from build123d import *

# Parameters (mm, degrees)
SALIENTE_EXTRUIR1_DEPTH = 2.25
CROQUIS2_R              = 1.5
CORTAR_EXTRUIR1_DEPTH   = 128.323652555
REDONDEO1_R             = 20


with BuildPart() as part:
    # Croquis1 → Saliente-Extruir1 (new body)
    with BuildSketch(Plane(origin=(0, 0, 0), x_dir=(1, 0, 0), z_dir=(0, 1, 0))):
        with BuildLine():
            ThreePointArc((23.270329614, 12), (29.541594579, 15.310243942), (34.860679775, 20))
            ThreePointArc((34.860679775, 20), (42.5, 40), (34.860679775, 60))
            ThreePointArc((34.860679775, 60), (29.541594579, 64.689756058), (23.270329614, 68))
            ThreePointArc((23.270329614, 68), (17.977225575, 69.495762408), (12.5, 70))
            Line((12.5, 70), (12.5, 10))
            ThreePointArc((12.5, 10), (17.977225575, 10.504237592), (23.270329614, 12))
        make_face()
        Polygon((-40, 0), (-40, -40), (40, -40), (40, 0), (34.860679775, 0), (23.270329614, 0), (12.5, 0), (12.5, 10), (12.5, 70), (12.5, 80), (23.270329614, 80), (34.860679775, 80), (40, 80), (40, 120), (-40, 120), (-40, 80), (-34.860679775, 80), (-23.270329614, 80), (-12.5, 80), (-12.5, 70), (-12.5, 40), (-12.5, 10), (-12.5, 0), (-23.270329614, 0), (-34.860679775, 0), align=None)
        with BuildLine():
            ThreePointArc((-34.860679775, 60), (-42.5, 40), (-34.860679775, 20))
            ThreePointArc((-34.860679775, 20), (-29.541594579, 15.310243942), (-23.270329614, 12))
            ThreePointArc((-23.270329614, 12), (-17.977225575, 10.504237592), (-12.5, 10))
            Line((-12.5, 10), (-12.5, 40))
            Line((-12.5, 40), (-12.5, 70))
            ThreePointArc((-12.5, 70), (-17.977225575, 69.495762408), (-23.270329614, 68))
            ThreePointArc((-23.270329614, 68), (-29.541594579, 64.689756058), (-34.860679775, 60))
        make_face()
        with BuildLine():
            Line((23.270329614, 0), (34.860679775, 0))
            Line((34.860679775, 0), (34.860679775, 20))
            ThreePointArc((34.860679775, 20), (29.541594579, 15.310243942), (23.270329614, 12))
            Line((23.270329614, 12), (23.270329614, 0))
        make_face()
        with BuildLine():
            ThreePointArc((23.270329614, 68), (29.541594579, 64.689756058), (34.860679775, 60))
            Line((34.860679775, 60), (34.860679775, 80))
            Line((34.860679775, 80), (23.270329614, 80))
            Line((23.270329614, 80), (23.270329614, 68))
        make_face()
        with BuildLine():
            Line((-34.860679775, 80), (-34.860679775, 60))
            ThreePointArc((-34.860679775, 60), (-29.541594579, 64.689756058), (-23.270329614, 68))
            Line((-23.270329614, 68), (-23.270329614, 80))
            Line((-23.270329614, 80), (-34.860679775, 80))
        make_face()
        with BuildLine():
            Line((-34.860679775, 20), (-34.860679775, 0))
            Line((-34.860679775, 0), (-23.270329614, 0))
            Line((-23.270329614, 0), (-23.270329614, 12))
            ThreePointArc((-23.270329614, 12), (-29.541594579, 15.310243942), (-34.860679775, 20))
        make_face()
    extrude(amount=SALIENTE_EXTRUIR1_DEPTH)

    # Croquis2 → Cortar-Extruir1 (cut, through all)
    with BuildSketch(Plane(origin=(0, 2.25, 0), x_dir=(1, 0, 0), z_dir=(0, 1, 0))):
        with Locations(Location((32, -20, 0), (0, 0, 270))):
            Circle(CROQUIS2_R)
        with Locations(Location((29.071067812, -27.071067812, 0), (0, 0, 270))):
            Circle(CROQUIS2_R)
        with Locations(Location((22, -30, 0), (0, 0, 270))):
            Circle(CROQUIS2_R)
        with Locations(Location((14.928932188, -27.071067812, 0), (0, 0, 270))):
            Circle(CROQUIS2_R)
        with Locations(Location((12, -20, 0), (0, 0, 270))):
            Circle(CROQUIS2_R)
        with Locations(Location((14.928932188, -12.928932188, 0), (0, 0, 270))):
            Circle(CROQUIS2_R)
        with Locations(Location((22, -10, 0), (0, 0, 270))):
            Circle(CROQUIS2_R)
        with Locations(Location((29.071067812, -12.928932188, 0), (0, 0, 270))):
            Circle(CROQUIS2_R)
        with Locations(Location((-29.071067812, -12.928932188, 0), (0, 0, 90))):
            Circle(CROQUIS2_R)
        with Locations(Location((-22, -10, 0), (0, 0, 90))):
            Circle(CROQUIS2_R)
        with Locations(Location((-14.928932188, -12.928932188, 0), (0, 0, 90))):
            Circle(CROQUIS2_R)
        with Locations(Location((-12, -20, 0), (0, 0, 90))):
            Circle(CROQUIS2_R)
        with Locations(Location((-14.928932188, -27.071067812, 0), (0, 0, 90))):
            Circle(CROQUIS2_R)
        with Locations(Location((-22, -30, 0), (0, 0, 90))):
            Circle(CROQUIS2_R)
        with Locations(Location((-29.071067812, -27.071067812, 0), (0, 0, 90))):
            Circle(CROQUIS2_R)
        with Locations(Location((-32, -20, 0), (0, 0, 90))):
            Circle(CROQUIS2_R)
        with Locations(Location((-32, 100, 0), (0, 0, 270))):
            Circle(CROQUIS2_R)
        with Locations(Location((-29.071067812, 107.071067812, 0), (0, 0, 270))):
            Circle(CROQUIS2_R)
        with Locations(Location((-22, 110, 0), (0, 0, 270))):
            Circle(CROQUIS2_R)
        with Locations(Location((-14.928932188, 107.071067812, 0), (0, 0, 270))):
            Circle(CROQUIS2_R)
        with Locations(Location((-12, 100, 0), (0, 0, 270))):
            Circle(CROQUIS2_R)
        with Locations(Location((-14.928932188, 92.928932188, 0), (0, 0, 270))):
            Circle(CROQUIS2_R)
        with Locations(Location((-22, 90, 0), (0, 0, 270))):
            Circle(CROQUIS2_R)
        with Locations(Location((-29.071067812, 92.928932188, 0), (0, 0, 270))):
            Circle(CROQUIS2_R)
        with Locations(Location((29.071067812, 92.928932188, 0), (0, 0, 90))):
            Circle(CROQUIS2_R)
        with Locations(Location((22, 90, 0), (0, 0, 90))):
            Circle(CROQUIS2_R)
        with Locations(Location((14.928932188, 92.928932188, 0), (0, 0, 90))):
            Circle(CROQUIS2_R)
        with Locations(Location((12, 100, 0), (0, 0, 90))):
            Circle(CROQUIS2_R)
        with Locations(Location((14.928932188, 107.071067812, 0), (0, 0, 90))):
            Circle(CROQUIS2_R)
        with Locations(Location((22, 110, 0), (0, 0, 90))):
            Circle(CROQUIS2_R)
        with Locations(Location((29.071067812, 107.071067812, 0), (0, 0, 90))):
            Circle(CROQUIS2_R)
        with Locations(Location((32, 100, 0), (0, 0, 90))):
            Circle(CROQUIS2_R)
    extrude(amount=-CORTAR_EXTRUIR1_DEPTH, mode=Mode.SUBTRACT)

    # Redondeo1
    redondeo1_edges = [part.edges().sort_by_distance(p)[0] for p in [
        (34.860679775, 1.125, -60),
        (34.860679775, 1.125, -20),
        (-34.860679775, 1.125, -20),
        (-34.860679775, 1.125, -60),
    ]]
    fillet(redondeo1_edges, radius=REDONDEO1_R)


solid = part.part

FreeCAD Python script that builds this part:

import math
import FreeCAD as App
import Part
import Sketcher
from FreeCAD import Vector
Q = App.Units.Quantity


def edges_at(feature, points):
    """Names of the edges that pass closest to the given points."""
    edges = feature.Shape.Edges
    near = lambda p: min(range(len(edges)), key=lambda i: edges[i].distToShape(Part.Vertex(*p))[0])
    return sorted({f"Edge{near(p) + 1}" for p in points})

doc = App.newDocument("Part")
params = doc.addObject("Spreadsheet::Sheet", "Params")
for row, (alias, value) in enumerate([
    ("sketch1_radius", "30 mm"),
    ("sketch1_width", "80 mm"),
    ("sketch1_height", "20 mm"),
    ("sketch1_height2", "40 mm"),
    ("sketch1_height3", "10 mm"),
    ("pad1_length", "2.25 mm"),
    ("sketch2_diameter", "3 mm"),
    ("fillet_radius", "20 mm"),
], start=1):
    params.set(f"A{row}", alias)
    params.set(f"B{row}", "=" + value)
    params.setAlias(f"B{row}", alias)

body = doc.addObject("PartDesign::Body", "Body")

sketch1 = body.newObject("Sketcher::SketchObject", "Sketch")
sketch1.AttachmentSupport = (doc.getObject("XZ_Plane"), [""])
sketch1.MapMode = "FlatFace"
sketch1.addGeometry(Part.ArcOfCircle(Part.Circle(Vector(13, -40, 0), Vector(0, 0, 1), 30), math.radians(-42), math.radians(42)), False)
sketch1.addGeometry(Part.LineSegment(Vector(35, -60, 0), Vector(35, -80, 0)), False)
sketch1.addGeometry(Part.LineSegment(Vector(35, -80, 0), Vector(40, -80, 0)), False)
sketch1.addGeometry(Part.LineSegment(Vector(40, -80, 0), Vector(40, -120, 0)), False)
sketch1.addGeometry(Part.LineSegment(Vector(40, -120, 0), Vector(-40, -120, 0)), False)
sketch1.addGeometry(Part.LineSegment(Vector(-40, -120, 0), Vector(-40, -80, 0)), False)
sketch1.addGeometry(Part.LineSegment(Vector(-40, -80, 0), Vector(-35, -80, 0)), False)
sketch1.addGeometry(Part.LineSegment(Vector(-35, -80, 0), Vector(-35, -60, 0)), False)
sketch1.addGeometry(Part.ArcOfCircle(Part.Circle(Vector(-13, -40, 0), Vector(0, 0, 1), 30), math.radians(138), math.radians(222)), False)
sketch1.addGeometry(Part.LineSegment(Vector(-35, -20, 0), Vector(-35, 0, 0)), False)
sketch1.addGeometry(Part.LineSegment(Vector(-35, 0, 0), Vector(-40, 0, 0)), False)
sketch1.addGeometry(Part.LineSegment(Vector(-40, 0, 0), Vector(-40, 40, 0)), False)
sketch1.addGeometry(Part.LineSegment(Vector(-40, 40, 0), Vector(40, 40, 0)), False)
sketch1.addGeometry(Part.LineSegment(Vector(40, 40, 0), Vector(40, 0, 0)), False)
sketch1.addGeometry(Part.LineSegment(Vector(40, 0, 0), Vector(35, 0, 0)), False)
sketch1.addGeometry(Part.LineSegment(Vector(35, 0, 0), Vector(35, -20, 0)), False)
sketch1.addGeometry(Part.ArcOfCircle(Part.Circle(Vector(-13, -40, 0), Vector(0, 0, 1), 30), math.radians(90), math.radians(111)), False)
sketch1.addGeometry(Part.LineSegment(Vector(-12, -10, 0), Vector(-12, 0, 0)), False)
sketch1.addGeometry(Part.LineSegment(Vector(-12, 0, 0), Vector(-23, 0, 0)), False)
sketch1.addGeometry(Part.LineSegment(Vector(-23, 0, 0), Vector(-23, -12, 0)), False)
sketch1.addGeometry(Part.LineSegment(Vector(-23, -80, 0), Vector(-12, -80, 0)), False)
sketch1.addGeometry(Part.LineSegment(Vector(-12, -80, 0), Vector(-12, -70, 0)), False)
sketch1.addGeometry(Part.ArcOfCircle(Part.Circle(Vector(-13, -40, 0), Vector(0, 0, 1), 30), math.radians(-111), math.radians(-90)), False)
sketch1.addGeometry(Part.LineSegment(Vector(-23, -68, 0), Vector(-23, -80, 0)), False)
sketch1.addGeometry(Part.ArcOfCircle(Part.Circle(Vector(13, -40, 0), Vector(0, 0, 1), 30), math.radians(-90), math.radians(-69)), False)
sketch1.addGeometry(Part.LineSegment(Vector(12, -70, 0), Vector(12, -80, 0)), False)
sketch1.addGeometry(Part.LineSegment(Vector(12, -80, 0), Vector(23, -80, 0)), False)
sketch1.addGeometry(Part.LineSegment(Vector(23, -80, 0), Vector(23, -68, 0)), False)
sketch1.addGeometry(Part.LineSegment(Vector(23, 0, 0), Vector(12, 0, 0)), False)
sketch1.addGeometry(Part.LineSegment(Vector(12, 0, 0), Vector(12, -10, 0)), False)
sketch1.addGeometry(Part.ArcOfCircle(Part.Circle(Vector(13, -40, 0), Vector(0, 0, 1), 30), math.radians(69), math.radians(90)), False)
sketch1.addGeometry(Part.LineSegment(Vector(23, -12, 0), Vector(23, 0, 0)), False)
sketch1.addConstraint(Sketcher.Constraint("Coincident", 0, 1, 1, 1))
sketch1.addConstraint(Sketcher.Constraint("Coincident", 1, 2, 2, 1))
sketch1.addConstraint(Sketcher.Constraint("Coincident", 2, 2, 3, 1))
sketch1.addConstraint(Sketcher.Constraint("Coincident", 3, 2, 4, 1))
sketch1.addConstraint(Sketcher.Constraint("Coincident", 4, 2, 5, 1))
sketch1.addConstraint(Sketcher.Constraint("Coincident", 5, 2, 6, 1))
sketch1.addConstraint(Sketcher.Constraint("Coincident", 6, 2, 7, 1))
sketch1.addConstraint(Sketcher.Constraint("Coincident", 7, 2, 8, 2))
sketch1.addConstraint(Sketcher.Constraint("Coincident", 8, 1, 9, 1))
sketch1.addConstraint(Sketcher.Constraint("Coincident", 9, 2, 10, 1))
sketch1.addConstraint(Sketcher.Constraint("Coincident", 10, 2, 11, 1))
sketch1.addConstraint(Sketcher.Constraint("Coincident", 11, 2, 12, 1))
sketch1.addConstraint(Sketcher.Constraint("Coincident", 12, 2, 13, 1))
sketch1.addConstraint(Sketcher.Constraint("Coincident", 13, 2, 14, 1))
sketch1.addConstraint(Sketcher.Constraint("Coincident", 14, 2, 15, 1))
sketch1.addConstraint(Sketcher.Constraint("Coincident", 15, 2, 0, 2))
sketch1.addConstraint(Sketcher.Constraint("Coincident", 16, 1, 17, 1))
sketch1.addConstraint(Sketcher.Constraint("Coincident", 17, 2, 18, 1))
sketch1.addConstraint(Sketcher.Constraint("Coincident", 18, 2, 19, 1))
sketch1.addConstraint(Sketcher.Constraint("Coincident", 19, 2, 16, 2))
sketch1.addConstraint(Sketcher.Constraint("Coincident", 20, 2, 21, 1))
sketch1.addConstraint(Sketcher.Constraint("Coincident", 21, 2, 22, 2))
sketch1.addConstraint(Sketcher.Constraint("Coincident", 22, 1, 23, 1))
sketch1.addConstraint(Sketcher.Constraint("Coincident", 23, 2, 20, 1))
sketch1.addConstraint(Sketcher.Constraint("Coincident", 24, 1, 25, 1))
sketch1.addConstraint(Sketcher.Constraint("Coincident", 25, 2, 26, 1))
sketch1.addConstraint(Sketcher.Constraint("Coincident", 26, 2, 27, 1))
sketch1.addConstraint(Sketcher.Constraint("Coincident", 27, 2, 24, 2))
sketch1.addConstraint(Sketcher.Constraint("Coincident", 28, 2, 29, 1))
sketch1.addConstraint(Sketcher.Constraint("Coincident", 29, 2, 30, 2))
sketch1.addConstraint(Sketcher.Constraint("Coincident", 30, 1, 31, 1))
sketch1.addConstraint(Sketcher.Constraint("Coincident", 31, 2, 28, 1))
sketch1.addConstraint(Sketcher.Constraint("Vertical", 1))
sketch1.addConstraint(Sketcher.Constraint("Horizontal", 2))
sketch1.addConstraint(Sketcher.Constraint("Vertical", 3))
sketch1.addConstraint(Sketcher.Constraint("Horizontal", 4))
sketch1.addConstraint(Sketcher.Constraint("Vertical", 5))
sketch1.addConstraint(Sketcher.Constraint("Horizontal", 6))
sketch1.addConstraint(Sketcher.Constraint("Vertical", 7))
sketch1.addConstraint(Sketcher.Constraint("Vertical", 9))
sketch1.addConstraint(Sketcher.Constraint("Horizontal", 10))
sketch1.addConstraint(Sketcher.Constraint("Vertical", 11))
sketch1.addConstraint(Sketcher.Constraint("Horizontal", 12))
sketch1.addConstraint(Sketcher.Constraint("Vertical", 13))
sketch1.addConstraint(Sketcher.Constraint("Horizontal", 14))
sketch1.addConstraint(Sketcher.Constraint("Vertical", 15))
sketch1.addConstraint(Sketcher.Constraint("Vertical", 17))
sketch1.addConstraint(Sketcher.Constraint("Horizontal", 18))
sketch1.addConstraint(Sketcher.Constraint("Vertical", 19))
sketch1.addConstraint(Sketcher.Constraint("Horizontal", 20))
sketch1.addConstraint(Sketcher.Constraint("Vertical", 21))
sketch1.addConstraint(Sketcher.Constraint("Vertical", 23))
sketch1.addConstraint(Sketcher.Constraint("Vertical", 25))
sketch1.addConstraint(Sketcher.Constraint("Horizontal", 26))
sketch1.addConstraint(Sketcher.Constraint("Vertical", 27))
sketch1.addConstraint(Sketcher.Constraint("Horizontal", 28))
sketch1.addConstraint(Sketcher.Constraint("Vertical", 29))
sketch1.addConstraint(Sketcher.Constraint("Vertical", 31))
sketch1.addConstraint(Sketcher.Constraint("Coincident", 16, 3, 8, 3))
sketch1.addConstraint(Sketcher.Constraint("Coincident", 22, 3, 8, 3))
sketch1.addConstraint(Sketcher.Constraint("Coincident", 24, 3, 0, 3))
sketch1.addConstraint(Sketcher.Constraint("Coincident", 30, 3, 0, 3))
sketch1.addConstraint(Sketcher.Constraint("Equal", 0, 8))
sketch1.addConstraint(Sketcher.Constraint("Equal", 8, 16))
sketch1.addConstraint(Sketcher.Constraint("Equal", 16, 22))
sketch1.addConstraint(Sketcher.Constraint("Equal", 22, 24))
sketch1.addConstraint(Sketcher.Constraint("Equal", 24, 30))
sketch1.addConstraint(Sketcher.Constraint("Symmetric", 10, 2, 13, 2, -1, 1))
sketch1.addConstraint(Sketcher.Constraint("Symmetric", 17, 2, 28, 2, -1, 1))
sketch1.addConstraint(Sketcher.Constraint("Symmetric", 0, 3, 8, 3, -2))
sketch1.addConstraint(Sketcher.Constraint("Symmetric", 2, 2, 5, 2, -2))
sketch1.addConstraint(Sketcher.Constraint("Symmetric", 9, 2, 14, 2, -2))
sketch1.addConstraint(Sketcher.Constraint("Symmetric", 20, 2, 25, 2, -2))
sketch1.addConstraint(Sketcher.Constraint("Symmetric", 18, 2, 31, 2, -2))
sketch1.addConstraint(Sketcher.Constraint("Horizontal", 0, 1, 7, 2))
sketch1.addConstraint(Sketcher.Constraint("Horizontal", 6, 2, 20, 2))
sketch1.addConstraint(Sketcher.Constraint("Horizontal", 22, 1, 27, 2))
sketch1.addConstraint(Sketcher.Constraint("Vertical", 7, 2, 8, 1))
sketch1.addConstraint(Sketcher.Constraint("Vertical", 5, 2, 10, 2))
sketch1.addConstraint(Sketcher.Constraint("Vertical", 22, 3, 16, 1))
sketch1.addConstraint(Sketcher.Constraint("Vertical", 17, 2, 20, 2))
sketch1.addConstraint(Sketcher.Constraint("Vertical", 19, 2, 22, 1))
sketch1.addConstraint(Sketcher.Constraint("Equal", 7, 9))
sketch1.addConstraint(Sketcher.Constraint("Equal", 5, 11))
sketch1.addConstraint(Sketcher.Constraint("Radius", 0, Q("30 mm")))
sketch1.addConstraint(Sketcher.Constraint("DistanceX", 4, 2, 4, 1, Q("80 mm")))
sketch1.addConstraint(Sketcher.Constraint("DistanceY", 1, 2, 1, 1, Q("20 mm")))
sketch1.addConstraint(Sketcher.Constraint("DistanceY", 3, 2, 3, 1, Q("40 mm")))
sketch1.addConstraint(Sketcher.Constraint("DistanceY", 17, 1, 17, 2, Q("10 mm")))
sketch1.addConstraint(Sketcher.Constraint("DistanceY", 19, 2, 19, 1, Q("12 mm")))
sketch1.addConstraint(Sketcher.Constraint("DistanceX", 8, 3, 0, 3, Q("25 mm")))
sketch1.setExpression("Constraints[84]", "Params.sketch1_radius")
sketch1.setExpression("Constraints[85]", "Params.sketch1_width")
sketch1.setExpression("Constraints[86]", "Params.sketch1_height")
sketch1.setExpression("Constraints[87]", "Params.sketch1_height2")
sketch1.setExpression("Constraints[88]", "Params.sketch1_height3")
pad1 = body.newObject("PartDesign::Pad", "Pad")
pad1.Profile = sketch1
pad1.setExpression("Length", "Params.pad1_length")
pad1.Reversed = True

sketch2 = body.newObject("Sketcher::SketchObject", "Sketch001")
sketch2.AttachmentSupport = (doc.getObject("XZ_Plane"), [""])
sketch2.MapMode = "FlatFace"
sketch2.AttachmentOffset = App.Placement(Vector(0, 0, -2.25), App.Rotation())
sketch2.addGeometry(Part.Circle(Vector(32, 20, 0), Vector(0, 0, 1), 1.5), False)
sketch2.addGeometry(Part.Circle(Vector(29.1, 27.1, 0), Vector(0, 0, 1), 1.5), False)
sketch2.addGeometry(Part.Circle(Vector(22, 30, 0), Vector(0, 0, 1), 1.5), False)
sketch2.addGeometry(Part.Circle(Vector(14.9, 27.1, 0), Vector(0, 0, 1), 1.5), False)
sketch2.addGeometry(Part.Circle(Vector(12, 20, 0), Vector(0, 0, 1), 1.5), False)
sketch2.addGeometry(Part.Circle(Vector(14.9, 12.9, 0), Vector(0, 0, 1), 1.5), False)
sketch2.addGeometry(Part.Circle(Vector(22, 10, 0), Vector(0, 0, 1), 1.5), False)
sketch2.addGeometry(Part.Circle(Vector(29.1, 12.9, 0), Vector(0, 0, 1), 1.5), False)
sketch2.addGeometry(Part.Circle(Vector(-29.1, 12.9, 0), Vector(0, 0, 1), 1.5), False)
sketch2.addGeometry(Part.Circle(Vector(-22, 10, 0), Vector(0, 0, 1), 1.5), False)
sketch2.addGeometry(Part.Circle(Vector(-14.9, 12.9, 0), Vector(0, 0, 1), 1.5), False)
sketch2.addGeometry(Part.Circle(Vector(-12, 20, 0), Vector(0, 0, 1), 1.5), False)
sketch2.addGeometry(Part.Circle(Vector(-14.9, 27.1, 0), Vector(0, 0, 1), 1.5), False)
sketch2.addGeometry(Part.Circle(Vector(-22, 30, 0), Vector(0, 0, 1), 1.5), False)
sketch2.addGeometry(Part.Circle(Vector(-29.1, 27.1, 0), Vector(0, 0, 1), 1.5), False)
sketch2.addGeometry(Part.Circle(Vector(-32, 20, 0), Vector(0, 0, 1), 1.5), False)
sketch2.addGeometry(Part.Circle(Vector(-32, -100, 0), Vector(0, 0, 1), 1.5), False)
sketch2.addGeometry(Part.Circle(Vector(-29.1, -107.1, 0), Vector(0, 0, 1), 1.5), False)
sketch2.addGeometry(Part.Circle(Vector(-22, -110, 0), Vector(0, 0, 1), 1.5), False)
sketch2.addGeometry(Part.Circle(Vector(-14.9, -107.1, 0), Vector(0, 0, 1), 1.5), False)
sketch2.addGeometry(Part.Circle(Vector(-12, -100, 0), Vector(0, 0, 1), 1.5), False)
sketch2.addGeometry(Part.Circle(Vector(-14.9, -92.9, 0), Vector(0, 0, 1), 1.5), False)
sketch2.addGeometry(Part.Circle(Vector(-22, -90, 0), Vector(0, 0, 1), 1.5), False)
sketch2.addGeometry(Part.Circle(Vector(-29.1, -92.9, 0), Vector(0, 0, 1), 1.5), False)
sketch2.addGeometry(Part.Circle(Vector(29.1, -92.9, 0), Vector(0, 0, 1), 1.5), False)
sketch2.addGeometry(Part.Circle(Vector(22, -90, 0), Vector(0, 0, 1), 1.5), False)
sketch2.addGeometry(Part.Circle(Vector(14.9, -92.9, 0), Vector(0, 0, 1), 1.5), False)
sketch2.addGeometry(Part.Circle(Vector(12, -100, 0), Vector(0, 0, 1), 1.5), False)
sketch2.addGeometry(Part.Circle(Vector(14.9, -107.1, 0), Vector(0, 0, 1), 1.5), False)
sketch2.addGeometry(Part.Circle(Vector(22, -110, 0), Vector(0, 0, 1), 1.5), False)
sketch2.addGeometry(Part.Circle(Vector(29.1, -107.1, 0), Vector(0, 0, 1), 1.5), False)
sketch2.addGeometry(Part.Circle(Vector(32, -100, 0), Vector(0, 0, 1), 1.5), False)
sketch2.addConstraint(Sketcher.Constraint("Equal", 0, 1))
sketch2.addConstraint(Sketcher.Constraint("Equal", 1, 2))
sketch2.addConstraint(Sketcher.Constraint("Equal", 2, 3))
sketch2.addConstraint(Sketcher.Constraint("Equal", 3, 4))
sketch2.addConstraint(Sketcher.Constraint("Equal", 4, 5))
sketch2.addConstraint(Sketcher.Constraint("Equal", 5, 6))
sketch2.addConstraint(Sketcher.Constraint("Equal", 6, 7))
sketch2.addConstraint(Sketcher.Constraint("Equal", 7, 8))
sketch2.addConstraint(Sketcher.Constraint("Equal", 8, 9))
sketch2.addConstraint(Sketcher.Constraint("Equal", 9, 10))
sketch2.addConstraint(Sketcher.Constraint("Equal", 10, 11))
sketch2.addConstraint(Sketcher.Constraint("Equal", 11, 12))
sketch2.addConstraint(Sketcher.Constraint("Equal", 12, 13))
sketch2.addConstraint(Sketcher.Constraint("Equal", 13, 14))
sketch2.addConstraint(Sketcher.Constraint("Equal", 14, 15))
sketch2.addConstraint(Sketcher.Constraint("Equal", 15, 16))
sketch2.addConstraint(Sketcher.Constraint("Equal", 16, 17))
sketch2.addConstraint(Sketcher.Constraint("Equal", 17, 18))
sketch2.addConstraint(Sketcher.Constraint("Equal", 18, 19))
sketch2.addConstraint(Sketcher.Constraint("Equal", 19, 20))
sketch2.addConstraint(Sketcher.Constraint("Equal", 20, 21))
sketch2.addConstraint(Sketcher.Constraint("Equal", 21, 22))
sketch2.addConstraint(Sketcher.Constraint("Equal", 22, 23))
sketch2.addConstraint(Sketcher.Constraint("Equal", 23, 24))
sketch2.addConstraint(Sketcher.Constraint("Equal", 24, 25))
sketch2.addConstraint(Sketcher.Constraint("Equal", 25, 26))
sketch2.addConstraint(Sketcher.Constraint("Equal", 26, 27))
sketch2.addConstraint(Sketcher.Constraint("Equal", 27, 28))
sketch2.addConstraint(Sketcher.Constraint("Equal", 28, 29))
sketch2.addConstraint(Sketcher.Constraint("Equal", 29, 30))
sketch2.addConstraint(Sketcher.Constraint("Equal", 30, 31))
sketch2.addConstraint(Sketcher.Constraint("Symmetric", 7, 3, 8, 3, -2))
sketch2.addConstraint(Sketcher.Constraint("Symmetric", 6, 3, 9, 3, -2))
sketch2.addConstraint(Sketcher.Constraint("Symmetric", 5, 3, 10, 3, -2))
sketch2.addConstraint(Sketcher.Constraint("Symmetric", 4, 3, 11, 3, -2))
sketch2.addConstraint(Sketcher.Constraint("Symmetric", 3, 3, 12, 3, -2))
sketch2.addConstraint(Sketcher.Constraint("Symmetric", 2, 3, 13, 3, -2))
sketch2.addConstraint(Sketcher.Constraint("Symmetric", 1, 3, 14, 3, -2))
sketch2.addConstraint(Sketcher.Constraint("Symmetric", 0, 3, 15, 3, -2))
sketch2.addConstraint(Sketcher.Constraint("Symmetric", 23, 3, 24, 3, -2))
sketch2.addConstraint(Sketcher.Constraint("Symmetric", 22, 3, 25, 3, -2))
sketch2.addConstraint(Sketcher.Constraint("Symmetric", 21, 3, 26, 3, -2))
sketch2.addConstraint(Sketcher.Constraint("Symmetric", 20, 3, 27, 3, -2))
sketch2.addConstraint(Sketcher.Constraint("Symmetric", 19, 3, 28, 3, -2))
sketch2.addConstraint(Sketcher.Constraint("Symmetric", 18, 3, 29, 3, -2))
sketch2.addConstraint(Sketcher.Constraint("Symmetric", 17, 3, 30, 3, -2))
sketch2.addConstraint(Sketcher.Constraint("Symmetric", 16, 3, 31, 3, -2))
sketch2.addConstraint(Sketcher.Constraint("Horizontal", 1, 3, 3, 3))
sketch2.addConstraint(Sketcher.Constraint("Horizontal", 0, 3, 4, 3))
sketch2.addConstraint(Sketcher.Constraint("Horizontal", 5, 3, 7, 3))
sketch2.addConstraint(Sketcher.Constraint("Horizontal", 17, 3, 19, 3))
sketch2.addConstraint(Sketcher.Constraint("Horizontal", 16, 3, 20, 3))
sketch2.addConstraint(Sketcher.Constraint("Horizontal", 21, 3, 23, 3))
sketch2.addConstraint(Sketcher.Constraint("Vertical", 3, 3, 5, 3))
sketch2.addConstraint(Sketcher.Constraint("Vertical", 2, 3, 6, 3))
sketch2.addConstraint(Sketcher.Constraint("Vertical", 1, 3, 7, 3))
sketch2.addConstraint(Sketcher.Constraint("Vertical", 15, 3, 16, 3))
sketch2.addConstraint(Sketcher.Constraint("Vertical", 14, 3, 17, 3))
sketch2.addConstraint(Sketcher.Constraint("Vertical", 13, 3, 18, 3))
sketch2.addConstraint(Sketcher.Constraint("Vertical", 12, 3, 19, 3))
sketch2.addConstraint(Sketcher.Constraint("Vertical", 11, 3, 20, 3))
sketch2.addConstraint(Sketcher.Constraint("Vertical", 19, 3, 21, 3))
sketch2.addConstraint(Sketcher.Constraint("Vertical", 18, 3, 22, 3))
sketch2.addConstraint(Sketcher.Constraint("Vertical", 17, 3, 23, 3))
sketch2.addConstraint(Sketcher.Constraint("Diameter", 0, Q("3 mm")))
sketch2.addConstraint(Sketcher.Constraint("DistanceX", -1, 1, 0, 3, Q("32 mm")))
sketch2.addConstraint(Sketcher.Constraint("DistanceY", -1, 1, 0, 3, Q("20 mm")))
sketch2.addConstraint(Sketcher.Constraint("DistanceX", -1, 1, 2, 3, Q("22 mm")))
sketch2.addConstraint(Sketcher.Constraint("DistanceY", -1, 1, 2, 3, Q("30 mm")))
sketch2.addConstraint(Sketcher.Constraint("DistanceX", -1, 1, 4, 3, Q("12 mm")))
sketch2.addConstraint(Sketcher.Constraint("DistanceY", -1, 1, 6, 3, Q("10 mm")))
sketch2.addConstraint(Sketcher.Constraint("DistanceY", 16, 3, -1, 1, Q("100 mm")))
sketch2.addConstraint(Sketcher.Constraint("DistanceY", 18, 3, -1, 1, Q("110 mm")))
sketch2.addConstraint(Sketcher.Constraint("DistanceY", 22, 3, -1, 1, Q("90 mm")))
sketch2.addConstraint(Sketcher.Constraint("DistanceX", 8, 3, 5, 3, Q("44 mm")))
sketch2.addConstraint(Sketcher.Constraint("DistanceY", 17, 3, 8, 3, Q("120 mm")))
sketch2.addConstraint(Sketcher.Constraint("DistanceX", -1, 1, 1, 3, Q("29.071068 mm")))
sketch2.addConstraint(Sketcher.Constraint("DistanceY", -1, 1, 1, 3, Q("27.071068 mm")))
sketch2.addConstraint(Sketcher.Constraint("DistanceY", -1, 1, 5, 3, Q("12.928932 mm")))
sketch2.addConstraint(Sketcher.Constraint("DistanceY", 21, 3, -1, 1, Q("92.928932 mm")))
sketch2.setExpression("Constraints[64]", "Params.sketch2_diameter")
pocket1 = body.newObject("PartDesign::Pocket", "Pocket")
pocket1.Profile = sketch2
pocket1.Type = "ThroughAll"
pocket1.Reversed = True
doc.recompute()

fillet = body.newObject("PartDesign::Fillet", "Fillet")
fillet.Base = (pocket1, edges_at(pocket1, [
    (34.861, 1.125, -60),
    (34.861, 1.125, -20),
    (-34.861, 1.125, -20),
    (-34.861, 1.125, -60),
]))
fillet.setExpression("Radius", "Params.fillet_radius")

doc.recompute()
